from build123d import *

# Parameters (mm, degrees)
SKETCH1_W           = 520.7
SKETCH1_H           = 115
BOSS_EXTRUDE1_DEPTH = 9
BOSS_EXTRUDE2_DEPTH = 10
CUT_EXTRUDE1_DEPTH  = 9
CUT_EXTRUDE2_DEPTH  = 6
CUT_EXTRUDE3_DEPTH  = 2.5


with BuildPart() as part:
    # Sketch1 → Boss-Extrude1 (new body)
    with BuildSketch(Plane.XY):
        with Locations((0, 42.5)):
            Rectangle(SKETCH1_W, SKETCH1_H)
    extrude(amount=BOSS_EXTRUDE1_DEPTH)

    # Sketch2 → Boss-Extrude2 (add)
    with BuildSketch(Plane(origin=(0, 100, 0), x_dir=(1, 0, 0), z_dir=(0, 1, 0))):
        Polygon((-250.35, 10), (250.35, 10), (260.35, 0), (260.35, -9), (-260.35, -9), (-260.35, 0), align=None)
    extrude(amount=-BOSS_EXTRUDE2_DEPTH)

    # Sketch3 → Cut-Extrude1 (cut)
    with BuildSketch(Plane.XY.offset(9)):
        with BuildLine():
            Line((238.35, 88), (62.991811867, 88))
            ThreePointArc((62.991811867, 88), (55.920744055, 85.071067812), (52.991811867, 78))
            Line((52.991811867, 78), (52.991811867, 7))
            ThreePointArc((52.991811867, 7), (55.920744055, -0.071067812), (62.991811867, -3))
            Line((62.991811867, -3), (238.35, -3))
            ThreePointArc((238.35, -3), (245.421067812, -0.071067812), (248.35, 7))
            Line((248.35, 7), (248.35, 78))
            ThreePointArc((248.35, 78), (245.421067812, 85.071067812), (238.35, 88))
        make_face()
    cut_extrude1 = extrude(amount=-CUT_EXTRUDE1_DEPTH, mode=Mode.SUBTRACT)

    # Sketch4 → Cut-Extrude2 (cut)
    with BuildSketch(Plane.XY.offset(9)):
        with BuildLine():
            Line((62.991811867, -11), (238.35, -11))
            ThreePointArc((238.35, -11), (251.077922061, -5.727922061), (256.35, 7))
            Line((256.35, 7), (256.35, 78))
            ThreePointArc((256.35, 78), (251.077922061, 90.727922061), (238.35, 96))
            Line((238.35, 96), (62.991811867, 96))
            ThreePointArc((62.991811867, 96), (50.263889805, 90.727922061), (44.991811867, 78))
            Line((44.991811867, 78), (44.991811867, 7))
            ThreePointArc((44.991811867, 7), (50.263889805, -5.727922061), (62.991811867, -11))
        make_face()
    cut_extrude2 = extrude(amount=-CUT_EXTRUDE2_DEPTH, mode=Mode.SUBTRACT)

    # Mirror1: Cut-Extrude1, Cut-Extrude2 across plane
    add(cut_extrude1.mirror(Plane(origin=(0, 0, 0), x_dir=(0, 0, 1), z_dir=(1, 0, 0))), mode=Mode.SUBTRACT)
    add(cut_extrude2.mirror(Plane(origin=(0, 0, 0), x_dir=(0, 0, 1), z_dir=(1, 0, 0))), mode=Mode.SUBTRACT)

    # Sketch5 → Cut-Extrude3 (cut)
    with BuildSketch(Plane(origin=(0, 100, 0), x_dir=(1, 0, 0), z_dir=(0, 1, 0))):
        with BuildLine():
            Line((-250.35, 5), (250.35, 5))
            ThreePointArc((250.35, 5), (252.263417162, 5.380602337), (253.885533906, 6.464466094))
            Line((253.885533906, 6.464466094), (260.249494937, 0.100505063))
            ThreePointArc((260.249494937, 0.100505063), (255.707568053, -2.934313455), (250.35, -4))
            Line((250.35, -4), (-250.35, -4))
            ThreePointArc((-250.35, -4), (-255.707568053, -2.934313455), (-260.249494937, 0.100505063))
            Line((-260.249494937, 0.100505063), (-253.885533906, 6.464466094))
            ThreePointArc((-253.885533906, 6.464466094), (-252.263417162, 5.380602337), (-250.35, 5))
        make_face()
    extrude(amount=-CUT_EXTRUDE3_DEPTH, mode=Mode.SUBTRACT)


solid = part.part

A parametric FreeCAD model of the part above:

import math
import FreeCAD as App
import Part
import Sketcher
Q = App.Units.Quantity


def add_polygon(sketch, points):
    """Adds a closed chain of lines whose ends are joined by coincident constraints."""
    first, n = sketch.GeometryCount, len(points)
    for a, b in zip(points, points[1:] + points[:1]):
        sketch.addGeometry(Part.LineSegment(App.Vector(*a, 0), App.Vector(*b, 0)), False)
    for i in range(n):
        sketch.addConstraint(Sketcher.Constraint("Coincident", first + i, 2, first + (i + 1) % n, 1))

doc = App.newDocument("Part")
body = doc.addObject("PartDesign::Body", "Body")

# Sketch on XY plane
sketch1 = body.newObject("Sketcher::SketchObject", "Sketch")
sketch1.AttachmentSupport = (doc.getObject("XY_Plane"), [""])
sketch1.MapMode = "FlatFace"
add_polygon(sketch1, [(-260, 100), (-260, -15), (260, -15), (260, 100)])  # lines 0-3
sketch1.addConstraint(Sketcher.Constraint("Vertical", 0))
sketch1.addConstraint(Sketcher.Constraint("Horizontal", 1))
sketch1.addConstraint(Sketcher.Constraint("Vertical", 2))
sketch1.addConstraint(Sketcher.Constraint("Horizontal", 3))
sketch1.addConstraint(Sketcher.Constraint("DistanceY", 0, 2, 0, 1, Q("115 mm")))
sketch1.addConstraint(Sketcher.Constraint("DistanceX", 1, 1, 1, 2, Q("520.7 mm")))
sketch1.addConstraint(Sketcher.Constraint("DistanceY", 0, 2, -1, 1, Q("15 mm")))
sketch1.addConstraint(Sketcher.Constraint("DistanceX", 0, 2, -1, 1, Q("260.35 mm")))
pad1 = body.newObject("PartDesign::Pad", "Pad")
pad1.Profile = sketch1
pad1.Length = 9

# Sketch on XZ plane
sketch2 = body.newObject("Sketcher::SketchObject", "Sketch001")
sketch2.AttachmentSupport = (doc.getObject("XZ_Plane"), [""])
sketch2.MapMode = "FlatFace"
sketch2.AttachmentOffset = App.Placement(App.Vector(0, 0, -100), App.Rotation())
add_polygon(sketch2, [(250, -10), (-250, -10), (-260, 0), (-260, 9), (260, 9), (260, 0)])  # lines 0-5
sketch2.addConstraint(Sketcher.Constraint("Horizontal", 0))
sketch2.addConstraint(Sketcher.Constraint("Vertical", 2))
sketch2.addConstraint(Sketcher.Constraint("Horizontal", 3))
sketch2.addConstraint(Sketcher.Constraint("Vertical", 4))
sketch2.addConstraint(Sketcher.Constraint("Symmetric", 1, 2, 4, 2, -1, 1))
sketch2.addConstraint(Sketcher.Constraint("PointOnObject", 1, 2, -1))
sketch2.addConstraint(Sketcher.Constraint("Perpendicular", 1, 5))
sketch2.addConstraint(Sketcher.Constraint("Equal", 1, 5))
sketch2.addConstraint(Sketcher.Constraint("DistanceY", 2, 1, 2, 2, Q("9 mm")))
sketch2.addConstraint(Sketcher.Constraint("DistanceX", 0, 2, 0, 1, Q("500.7 mm")))
sketch2.addConstraint(Sketcher.Constraint("DistanceX", 3, 1, 3, 2, Q("520.7 mm")))
pad2 = body.newObject("PartDesign::Pad", "Pad001")
pad2.Profile = sketch2
pad2.Length = 10

# Sketch on XY plane
sketch3 = body.newObject("Sketcher::SketchObject", "Sketch002")
sketch3.AttachmentSupport = (doc.getObject("XY_Plane"), [""])
sketch3.MapMode = "FlatFace"
sketch3.AttachmentOffset = App.Placement(App.Vector(0, 0, 9), App.Rotation())
sketch3.addGeometry(Part.LineSegment(App.Vector(238, 88, 0), App.Vector(63, 88, 0)), False)
sketch3.addGeometry(Part.ArcOfCircle(Part.Circle(App.Vector(63, 78, 0), App.Vector(0, 0, 1), 10), math.radians(90), math.radians(180)), False)
sketch3.addGeometry(Part.LineSegment(App.Vector(53, 78, 0), App.Vector(53, 7, 0)), False)
sketch3.addGeometry(Part.ArcOfCircle(Part.Circle(App.Vector(63, 7, 0), App.Vector(0, 0, 1), 10), math.radians(180), math.radians(270)), False)
sketch3.addGeometry(Part.LineSegment(App.Vector(63, -3, 0), App.Vector(238, -3, 0)), False)
sketch3.addGeometry(Part.ArcOfCircle(Part.Circle(App.Vector(238, 7, 0), App.Vector(0, 0, 1), 10), math.radians(-90), math.radians(0)), False)
sketch3.addGeometry(Part.LineSegment(App.Vector(248, 7, 0), App.Vector(248, 78, 0)), False)
sketch3.addGeometry(Part.ArcOfCircle(Part.Circle(App.Vector(238, 78, 0), App.Vector(0, 0, 1), 10), math.radians(0), math.radians(90)), False)
sketch3.addConstraint(Sketcher.Constraint("Tangent", 0, 2, 1, 1))
sketch3.addConstraint(Sketcher.Constraint("Tangent", 1, 2, 2, 1))
sketch3.addConstraint(Sketcher.Constraint("Tangent", 2, 2, 3, 1))
sketch3.addConstraint(Sketcher.Constraint("Tangent", 3, 2, 4, 1))
sketch3.addConstraint(Sketcher.Constraint("Tangent", 4, 2, 5, 1))
sketch3.addConstraint(Sketcher.Constraint("Tangent", 5, 2, 6, 1))
sketch3.addConstraint(Sketcher.Constraint("Tangent", 6, 2, 7, 1))
sketch3.addConstraint(Sketcher.Constraint("Tangent", 7, 2, 0, 1))
sketch3.addConstraint(Sketcher.Constraint("Horizontal", 0))
sketch3.addConstraint(Sketcher.Constraint("Vertical", 2))
sketch3.addConstraint(Sketcher.Constraint("Horizontal", 4))
sketch3.addConstraint(Sketcher.Constraint("Vertical", 6))
sketch3.addConstraint(Sketcher.Constraint("Equal", 1, 3))
sketch3.addConstraint(Sketcher.Constraint("Equal", 3, 5))
sketch3.addConstraint(Sketcher.Constraint("Equal", 5, 7))
sketch3.addConstraint(Sketcher.Constraint("Radius", 1, Q("10 mm")))
sketch3.addConstraint(Sketcher.Constraint("DistanceY", 2, 2, 2, 1, Q("71 mm")))
sketch3.addConstraint(Sketcher.Constraint("DistanceY", -1, 1, 1, 3, Q("78 mm")))
sketch3.addConstraint(Sketcher.Constraint("DistanceX", -1, 1, 5, 3, Q("238.35 mm")))
sketch3.addConstraint(Sketcher.Constraint("DistanceX", 0, 2, 0, 1, Q("175.358188 mm")))
pocket1 = body.newObject("PartDesign::Pocket", "Pocket")
pocket1.Profile = sketch3
pocket1.Length = 9

# Sketch on XY plane
sketch4 = body.newObject("Sketcher::SketchObject", "Sketch003")
sketch4.AttachmentSupport = (doc.getObject("XY_Plane"), [""])
sketch4.MapMode = "FlatFace"
sketch4.AttachmentOffset = App.Placement(App.Vector(0, 0, 9), App.Rotation())
sketch4.addGeometry(Part.LineSegment(App.Vector(63, -11, 0), App.Vector(238, -11, 0)), False)
sketch4.addGeometry(Part.ArcOfCircle(Part.Circle(App.Vector(238, 7, 0), App.Vector(0, 0, 1), 18), math.radians(-90), math.radians(0)), False)
sketch4.addGeometry(Part.LineSegment(App.Vector(256, 7, 0), App.Vector(256, 78, 0)), False)
sketch4.addGeometry(Part.ArcOfCircle(Part.Circle(App.Vector(238, 78, 0), App.Vector(0, 0, 1), 18), math.radians(0), math.radians(90)), False)
sketch4.addGeometry(Part.LineSegment(App.Vector(238, 96, 0), App.Vector(63, 96, 0)), False)
sketch4.addGeometry(Part.ArcOfCircle(Part.Circle(App.Vector(63, 78, 0), App.Vector(0, 0, 1), 18), math.radians(90), math.radians(180)), False)
sketch4.addGeometry(Part.LineSegment(App.Vector(45, 78, 0), App.Vector(45, 7, 0)), False)
sketch4.addGeometry(Part.ArcOfCircle(Part.Circle(App.Vector(63, 7, 0), App.Vector(0, 0, 1), 18), math.radians(180), math.radians(270)), False)
sketch4.addConstraint(Sketcher.Constraint("Tangent", 0, 2, 1, 1))
sketch4.addConstraint(Sketcher.Constraint("Tangent", 1, 2, 2, 1))
sketch4.addConstraint(Sketcher.Constraint("Tangent", 2, 2, 3, 1))
sketch4.addConstraint(Sketcher.Constraint("Tangent", 3, 2, 4, 1))
sketch4.addConstraint(Sketcher.Constraint("Tangent", 4, 2, 5, 1))
sketch4.addConstraint(Sketcher.Constraint("Tangent", 5, 2, 6, 1))
sketch4.addConstraint(Sketcher.Constraint("Tangent", 6, 2, 7, 1))
sketch4.addConstraint(Sketcher.Constraint("Tangent", 7, 2, 0, 1))
sketch4.addConstraint(Sketcher.Constraint("Horizontal", 0))
sketch4.addConstraint(Sketcher.Constraint("Vertical", 2))
sketch4.addConstraint(Sketcher.Constraint("Horizontal", 4))
sketch4.addConstraint(Sketcher.Constraint("Vertical", 6))
sketch4.addConstraint(Sketcher.Constraint("Equal", 1, 3))
sketch4.addConstraint(Sketcher.Constraint("Equal", 3, 5))
sketch4.addConstraint(Sketcher.Constraint("Equal", 5, 7))
sketch4.addConstraint(Sketcher.Constraint("Radius", 1, Q("18 mm")))
sketch4.addConstraint(Sketcher.Constraint("DistanceY", 2, 1, 2, 2, Q("71 mm")))
sketch4.addConstraint(Sketcher.Constraint("DistanceY", -1, 1, 1, 3, Q("7 mm")))
sketch4.addConstraint(Sketcher.Constraint("DistanceX", -1, 1, 1, 3, Q("238.35 mm")))
sketch4.addConstraint(Sketcher.Constraint("DistanceX", 0, 1, 0, 2, Q("175.358188 mm")))
pocket2 = body.newObject("PartDesign::Pocket", "Pocket001")
pocket2.Profile = sketch4
pocket2.Length = 6
doc.recompute()

mirrored = body.newObject("PartDesign::Mirrored", "Mirrored")
mirrored.Originals = [pocket1, pocket2]
mirrored.MirrorPlane = (doc.getObject("YZ_Plane"), [""])
body.Tip = mirrored

# Sketch on XZ plane
sketch5 = body.newObject("Sketcher::SketchObject", "Sketch004")
sketch5.AttachmentSupport = (doc.getObject("XZ_Plane"), [""])
sketch5.MapMode = "FlatFace"
sketch5.AttachmentOffset = App.Placement(App.Vector(0, 0, -100), App.Rotation())
sketch5.addGeometry(Part.LineSegment(App.Vector(250.3, -5, 0), App.Vector(-250.3, -5, 0)), False)
sketch5.addGeometry(Part.ArcOfCircle(Part.Circle(App.Vector(-250.4, -10, 0), App.Vector(0, 0, 1), 5), math.radians(90), math.radians(135)), False)
sketch5.addGeometry(Part.LineSegment(App.Vector(-253.9, -6.5, 0), App.Vector(-260.2, -0.1, 0)), False)
sketch5.addGeometry(Part.ArcOfCircle(Part.Circle(App.Vector(-250.3, -10, 0), App.Vector(0, 0, 1), 14), math.radians(90), math.radians(135)), False)
sketch5.addGeometry(Part.LineSegment(App.Vector(-250.3, 4, 0), App.Vector(250.3, 4, 0)), False)
sketch5.addGeometry(Part.ArcOfCircle(Part.Circle(App.Vector(250.3, -10, 0), App.Vector(0, 0, 1), 14), math.radians(45), math.radians(90)), False)
sketch5.addGeometry(Part.LineSegment(App.Vector(260.2, -0.1, 0), App.Vector(253.9, -6.5, 0)), False)
sketch5.addGeometry(Part.ArcOfCircle(Part.Circle(App.Vector(250.4, -10, 0), App.Vector(0, 0, 1), 5), math.radians(45), math.radians(90)), False)
sketch5.addConstraint(Sketcher.Constraint("Tangent", 0, 2, 1, 1))
sketch5.addConstraint(Sketcher.Constraint("Coincident", 1, 2, 2, 1))
sketch5.addConstraint(Sketcher.Constraint("Coincident", 2, 2, 3, 2))
sketch5.addConstraint(Sketcher.Constraint("Tangent", 3, 1, 4, 1))
sketch5.addConstraint(Sketcher.Constraint("Tangent", 4, 2, 5, 2))
sketch5.addConstraint(Sketcher.Constraint("Coincident", 5, 1, 6, 1))
sketch5.addConstraint(Sketcher.Constraint("Coincident", 6, 2, 7, 1))
sketch5.addConstraint(Sketcher.Constraint("Tangent", 7, 2, 0, 1))
sketch5.addConstraint(Sketcher.Constraint("Horizontal", 0))
sketch5.addConstraint(Sketcher.Constraint("Horizontal", 4))
sketch5.addConstraint(Sketcher.Constraint("Coincident", 3, 3, 1, 3))
sketch5.addConstraint(Sketcher.Constraint("Coincident", 7, 3, 5, 3))
sketch5.addConstraint(Sketcher.Constraint("Equal", 3, 5))
sketch5.addConstraint(Sketcher.Constraint("Symmetric", 2, 2, 5, 1, -2))
sketch5.addConstraint(Sketcher.Constraint("Perpendicular", 2, 6))
sketch5.addConstraint(Sketcher.Constraint("Horizontal", 1, 2, 6, 2))
sketch5.addConstraint(Sketcher.Constraint("Radius", 1, Q("5 mm")))
sketch5.addConstraint(Sketcher.Constraint("Radius", 3, Q("14 mm")))
sketch5.addConstraint(Sketcher.Constraint("DistanceX", 0, 2, 0, 1, Q("500.7 mm")))
sketch5.addConstraint(Sketcher.Constraint("DistanceY", 1, 3, -1, 1, Q("10 mm")))
sketch5.addConstraint(Sketcher.Constraint("DistanceX", 1, 2, -1, 1, Q("253.885534 mm")))
pocket3 = body.newObject("PartDesign::Pocket", "Pocket002")
pocket3.Profile = sketch5
pocket3.Length = 2.5
pocket3.Reversed = True

doc.recompute()
